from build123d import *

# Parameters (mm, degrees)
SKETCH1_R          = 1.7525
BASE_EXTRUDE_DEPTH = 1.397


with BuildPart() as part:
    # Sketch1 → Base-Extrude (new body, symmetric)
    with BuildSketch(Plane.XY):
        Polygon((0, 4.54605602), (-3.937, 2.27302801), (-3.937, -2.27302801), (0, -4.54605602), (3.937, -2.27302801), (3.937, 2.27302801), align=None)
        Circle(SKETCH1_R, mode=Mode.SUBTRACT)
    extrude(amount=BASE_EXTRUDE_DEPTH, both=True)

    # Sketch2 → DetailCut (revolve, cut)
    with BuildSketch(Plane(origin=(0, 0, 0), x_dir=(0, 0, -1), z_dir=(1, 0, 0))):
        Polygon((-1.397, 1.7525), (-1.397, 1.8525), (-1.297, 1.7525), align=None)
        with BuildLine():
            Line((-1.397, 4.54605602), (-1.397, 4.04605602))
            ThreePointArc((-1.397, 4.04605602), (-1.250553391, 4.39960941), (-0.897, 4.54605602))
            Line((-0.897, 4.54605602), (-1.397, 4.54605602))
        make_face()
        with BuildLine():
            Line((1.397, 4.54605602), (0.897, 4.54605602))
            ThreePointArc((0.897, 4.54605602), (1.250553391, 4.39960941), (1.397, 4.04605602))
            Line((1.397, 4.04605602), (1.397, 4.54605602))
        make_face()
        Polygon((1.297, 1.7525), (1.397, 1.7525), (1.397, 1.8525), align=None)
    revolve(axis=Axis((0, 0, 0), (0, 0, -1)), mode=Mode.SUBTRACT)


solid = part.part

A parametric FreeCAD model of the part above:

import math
import FreeCAD as App
import Part
import Sketcher
Q = App.Units.Quantity


def add_polygon(sketch, points):
    """Adds a closed chain of lines whose ends are joined by coincident constraints."""
    first, n = sketch.GeometryCount, len(points)
    for a, b in zip(points, points[1:] + points[:1]):
        sketch.addGeometry(Part.LineSegment(App.Vector(*a, 0), App.Vector(*b, 0)), False)
    for i in range(n):
        sketch.addConstraint(Sketcher.Constraint("Coincident", first + i, 2, first + (i + 1) % n, 1))

doc = App.newDocument("Part")
body = doc.addObject("PartDesign::Body", "Body")

# Sketch on XY plane
sketch1 = doc.addObject("Sketcher::SketchObject", "Sketch")
body.addObject(sketch1)
sketch1.AttachmentSupport = (doc.XY_Plane, [""])
sketch1.MapMode = "FlatFace"
add_polygon(sketch1, [(0, 4.5), (-3.9, 2.3), (-3.9, -2.3), (0, -4.5), (3.9, -2.3), (3.9, 2.3)])  # lines 0-5
sketch1.addGeometry(Part.Circle(App.Vector(0, 0, 0), App.Vector(0, 0, 1), 1.8), False)  # 6
sketch1.addConstraint([
    Sketcher.Constraint("Vertical", 1),
    Sketcher.Constraint("Vertical", 4),
    Sketcher.Constraint("Coincident", 6, 3, -1, 1),
    Sketcher.Constraint("Symmetric", 0, 2, 3, 2, -1, 1),
    Sketcher.Constraint("Symmetric", 2, 2, 5, 2, -1, 1),
    Sketcher.Constraint("PointOnObject", 2, 2, -2),
    Sketcher.Constraint("Parallel", 2, 5),
    Sketcher.Constraint("Horizontal", 1, 2, 3, 2),
    Sketcher.Constraint("Angle", 0, Q("-150 deg")),
    Sketcher.Constraint("Diameter", 6, Q("3.505 mm")),
    Sketcher.Constraint("DistanceX", 0, 2, -1, 1, Q("3.937 mm")),
    Sketcher.Constraint("DistanceY", 1, 2, 1, 1, Q("4.546056 mm")),
])
pad1 = doc.addObject("PartDesign::Pad", "Pad")
body.addObject(pad1)
pad1.Profile = sketch1
pad1.Length = 2.794
pad1.Midplane = True

# Sketch on YZ plane
sketch2 = doc.addObject("Sketcher::SketchObject", "Sketch001")
body.addObject(sketch2)
sketch2.AttachmentSupport = (doc.YZ_Plane, [""])
sketch2.MapMode = "FlatFace"
add_polygon(sketch2, [(1.85, 1.4), (1.75, 1.4), (1.75, 1.3)])  # lines 0-2
sketch2.addGeometry(Part.LineSegment(App.Vector(4.55, 1.4, 0), App.Vector(4.05, 1.4, 0)), False)  # 3
sketch2.addGeometry(Part.ArcOfCircle(Part.Circle(App.Vector(4.05, 0.9, 0), App.Vector(0, 0, 1), 0.5), math.radians(0), math.radians(90)), False)  # 4
sketch2.addGeometry(Part.LineSegment(App.Vector(4.55, 0.9, 0), App.Vector(4.55, 1.4, 0)), False)  # 5
sketch2.addGeometry(Part.LineSegment(App.Vector(4.55, -1.4, 0), App.Vector(4.55, -0.9, 0)), False)  # 6
sketch2.addGeometry(Part.ArcOfCircle(Part.Circle(App.Vector(4.05, -0.9, 0), App.Vector(0, 0, 1), 0.5), math.radians(-90), math.radians(0)), False)  # 7
sketch2.addGeometry(Part.LineSegment(App.Vector(4.05, -1.4, 0), App.Vector(4.55, -1.4, 0)), False)  # 8
add_polygon(sketch2, [(1.75, -1.3), (1.75, -1.4), (1.85, -1.4)])  # lines 9-11
sketch2.addConstraint([
    Sketcher.Constraint("Tangent", 3, 2, 4, 2),
    Sketcher.Constraint("Tangent", 4, 1, 5, 1),
    Sketcher.Constraint("Coincident", 5, 2, 3, 1),
    Sketcher.Constraint("Tangent", 6, 2, 7, 2),
    Sketcher.Constraint("Tangent", 7, 1, 8, 1),
    Sketcher.Constraint("Coincident", 8, 2, 6, 1),
    Sketcher.Constraint("Horizontal", 0),
    Sketcher.Constraint("Vertical", 1),
    Sketcher.Constraint("Horizontal", 3),
    Sketcher.Constraint("Vertical", 5),
    Sketcher.Constraint("Vertical", 6),
    Sketcher.Constraint("Horizontal", 8),
    Sketcher.Constraint("Vertical", 9),
    Sketcher.Constraint("Horizontal", 10),
    Sketcher.Constraint("Equal", 4, 7),
    Sketcher.Constraint("Symmetric", 4, 3, 7, 3, -1),
    Sketcher.Constraint("Symmetric", 0, 2, 9, 2, -1),
    Sketcher.Constraint("Perpendicular", 2, 11),
    Sketcher.Constraint("Horizontal", 2, 2, 3, 2),
    Sketcher.Constraint("Vertical", 2, 2, 10, 2),
    Sketcher.Constraint("Equal", 10, 1),
    Sketcher.Constraint("Radius", 4, Q("0.5 mm")),
    Sketcher.Constraint("DistanceX", 0, 2, 0, 1, Q("0.1 mm")),
    Sketcher.Constraint("DistanceY", -1, 1, 4, 3, Q("0.897 mm")),
    Sketcher.Constraint("DistanceX", -1, 1, 0, 2, Q("1.7525 mm")),
    Sketcher.Constraint("DistanceX", -1, 1, 4, 3, Q("4.046056 mm")),
])
groove = doc.addObject("PartDesign::Groove", "Groove")
body.addObject(groove)
groove.Profile = sketch2
groove.ReferenceAxis = (sketch2, ["V_Axis"])
groove.Angle = 360

doc.recompute()
